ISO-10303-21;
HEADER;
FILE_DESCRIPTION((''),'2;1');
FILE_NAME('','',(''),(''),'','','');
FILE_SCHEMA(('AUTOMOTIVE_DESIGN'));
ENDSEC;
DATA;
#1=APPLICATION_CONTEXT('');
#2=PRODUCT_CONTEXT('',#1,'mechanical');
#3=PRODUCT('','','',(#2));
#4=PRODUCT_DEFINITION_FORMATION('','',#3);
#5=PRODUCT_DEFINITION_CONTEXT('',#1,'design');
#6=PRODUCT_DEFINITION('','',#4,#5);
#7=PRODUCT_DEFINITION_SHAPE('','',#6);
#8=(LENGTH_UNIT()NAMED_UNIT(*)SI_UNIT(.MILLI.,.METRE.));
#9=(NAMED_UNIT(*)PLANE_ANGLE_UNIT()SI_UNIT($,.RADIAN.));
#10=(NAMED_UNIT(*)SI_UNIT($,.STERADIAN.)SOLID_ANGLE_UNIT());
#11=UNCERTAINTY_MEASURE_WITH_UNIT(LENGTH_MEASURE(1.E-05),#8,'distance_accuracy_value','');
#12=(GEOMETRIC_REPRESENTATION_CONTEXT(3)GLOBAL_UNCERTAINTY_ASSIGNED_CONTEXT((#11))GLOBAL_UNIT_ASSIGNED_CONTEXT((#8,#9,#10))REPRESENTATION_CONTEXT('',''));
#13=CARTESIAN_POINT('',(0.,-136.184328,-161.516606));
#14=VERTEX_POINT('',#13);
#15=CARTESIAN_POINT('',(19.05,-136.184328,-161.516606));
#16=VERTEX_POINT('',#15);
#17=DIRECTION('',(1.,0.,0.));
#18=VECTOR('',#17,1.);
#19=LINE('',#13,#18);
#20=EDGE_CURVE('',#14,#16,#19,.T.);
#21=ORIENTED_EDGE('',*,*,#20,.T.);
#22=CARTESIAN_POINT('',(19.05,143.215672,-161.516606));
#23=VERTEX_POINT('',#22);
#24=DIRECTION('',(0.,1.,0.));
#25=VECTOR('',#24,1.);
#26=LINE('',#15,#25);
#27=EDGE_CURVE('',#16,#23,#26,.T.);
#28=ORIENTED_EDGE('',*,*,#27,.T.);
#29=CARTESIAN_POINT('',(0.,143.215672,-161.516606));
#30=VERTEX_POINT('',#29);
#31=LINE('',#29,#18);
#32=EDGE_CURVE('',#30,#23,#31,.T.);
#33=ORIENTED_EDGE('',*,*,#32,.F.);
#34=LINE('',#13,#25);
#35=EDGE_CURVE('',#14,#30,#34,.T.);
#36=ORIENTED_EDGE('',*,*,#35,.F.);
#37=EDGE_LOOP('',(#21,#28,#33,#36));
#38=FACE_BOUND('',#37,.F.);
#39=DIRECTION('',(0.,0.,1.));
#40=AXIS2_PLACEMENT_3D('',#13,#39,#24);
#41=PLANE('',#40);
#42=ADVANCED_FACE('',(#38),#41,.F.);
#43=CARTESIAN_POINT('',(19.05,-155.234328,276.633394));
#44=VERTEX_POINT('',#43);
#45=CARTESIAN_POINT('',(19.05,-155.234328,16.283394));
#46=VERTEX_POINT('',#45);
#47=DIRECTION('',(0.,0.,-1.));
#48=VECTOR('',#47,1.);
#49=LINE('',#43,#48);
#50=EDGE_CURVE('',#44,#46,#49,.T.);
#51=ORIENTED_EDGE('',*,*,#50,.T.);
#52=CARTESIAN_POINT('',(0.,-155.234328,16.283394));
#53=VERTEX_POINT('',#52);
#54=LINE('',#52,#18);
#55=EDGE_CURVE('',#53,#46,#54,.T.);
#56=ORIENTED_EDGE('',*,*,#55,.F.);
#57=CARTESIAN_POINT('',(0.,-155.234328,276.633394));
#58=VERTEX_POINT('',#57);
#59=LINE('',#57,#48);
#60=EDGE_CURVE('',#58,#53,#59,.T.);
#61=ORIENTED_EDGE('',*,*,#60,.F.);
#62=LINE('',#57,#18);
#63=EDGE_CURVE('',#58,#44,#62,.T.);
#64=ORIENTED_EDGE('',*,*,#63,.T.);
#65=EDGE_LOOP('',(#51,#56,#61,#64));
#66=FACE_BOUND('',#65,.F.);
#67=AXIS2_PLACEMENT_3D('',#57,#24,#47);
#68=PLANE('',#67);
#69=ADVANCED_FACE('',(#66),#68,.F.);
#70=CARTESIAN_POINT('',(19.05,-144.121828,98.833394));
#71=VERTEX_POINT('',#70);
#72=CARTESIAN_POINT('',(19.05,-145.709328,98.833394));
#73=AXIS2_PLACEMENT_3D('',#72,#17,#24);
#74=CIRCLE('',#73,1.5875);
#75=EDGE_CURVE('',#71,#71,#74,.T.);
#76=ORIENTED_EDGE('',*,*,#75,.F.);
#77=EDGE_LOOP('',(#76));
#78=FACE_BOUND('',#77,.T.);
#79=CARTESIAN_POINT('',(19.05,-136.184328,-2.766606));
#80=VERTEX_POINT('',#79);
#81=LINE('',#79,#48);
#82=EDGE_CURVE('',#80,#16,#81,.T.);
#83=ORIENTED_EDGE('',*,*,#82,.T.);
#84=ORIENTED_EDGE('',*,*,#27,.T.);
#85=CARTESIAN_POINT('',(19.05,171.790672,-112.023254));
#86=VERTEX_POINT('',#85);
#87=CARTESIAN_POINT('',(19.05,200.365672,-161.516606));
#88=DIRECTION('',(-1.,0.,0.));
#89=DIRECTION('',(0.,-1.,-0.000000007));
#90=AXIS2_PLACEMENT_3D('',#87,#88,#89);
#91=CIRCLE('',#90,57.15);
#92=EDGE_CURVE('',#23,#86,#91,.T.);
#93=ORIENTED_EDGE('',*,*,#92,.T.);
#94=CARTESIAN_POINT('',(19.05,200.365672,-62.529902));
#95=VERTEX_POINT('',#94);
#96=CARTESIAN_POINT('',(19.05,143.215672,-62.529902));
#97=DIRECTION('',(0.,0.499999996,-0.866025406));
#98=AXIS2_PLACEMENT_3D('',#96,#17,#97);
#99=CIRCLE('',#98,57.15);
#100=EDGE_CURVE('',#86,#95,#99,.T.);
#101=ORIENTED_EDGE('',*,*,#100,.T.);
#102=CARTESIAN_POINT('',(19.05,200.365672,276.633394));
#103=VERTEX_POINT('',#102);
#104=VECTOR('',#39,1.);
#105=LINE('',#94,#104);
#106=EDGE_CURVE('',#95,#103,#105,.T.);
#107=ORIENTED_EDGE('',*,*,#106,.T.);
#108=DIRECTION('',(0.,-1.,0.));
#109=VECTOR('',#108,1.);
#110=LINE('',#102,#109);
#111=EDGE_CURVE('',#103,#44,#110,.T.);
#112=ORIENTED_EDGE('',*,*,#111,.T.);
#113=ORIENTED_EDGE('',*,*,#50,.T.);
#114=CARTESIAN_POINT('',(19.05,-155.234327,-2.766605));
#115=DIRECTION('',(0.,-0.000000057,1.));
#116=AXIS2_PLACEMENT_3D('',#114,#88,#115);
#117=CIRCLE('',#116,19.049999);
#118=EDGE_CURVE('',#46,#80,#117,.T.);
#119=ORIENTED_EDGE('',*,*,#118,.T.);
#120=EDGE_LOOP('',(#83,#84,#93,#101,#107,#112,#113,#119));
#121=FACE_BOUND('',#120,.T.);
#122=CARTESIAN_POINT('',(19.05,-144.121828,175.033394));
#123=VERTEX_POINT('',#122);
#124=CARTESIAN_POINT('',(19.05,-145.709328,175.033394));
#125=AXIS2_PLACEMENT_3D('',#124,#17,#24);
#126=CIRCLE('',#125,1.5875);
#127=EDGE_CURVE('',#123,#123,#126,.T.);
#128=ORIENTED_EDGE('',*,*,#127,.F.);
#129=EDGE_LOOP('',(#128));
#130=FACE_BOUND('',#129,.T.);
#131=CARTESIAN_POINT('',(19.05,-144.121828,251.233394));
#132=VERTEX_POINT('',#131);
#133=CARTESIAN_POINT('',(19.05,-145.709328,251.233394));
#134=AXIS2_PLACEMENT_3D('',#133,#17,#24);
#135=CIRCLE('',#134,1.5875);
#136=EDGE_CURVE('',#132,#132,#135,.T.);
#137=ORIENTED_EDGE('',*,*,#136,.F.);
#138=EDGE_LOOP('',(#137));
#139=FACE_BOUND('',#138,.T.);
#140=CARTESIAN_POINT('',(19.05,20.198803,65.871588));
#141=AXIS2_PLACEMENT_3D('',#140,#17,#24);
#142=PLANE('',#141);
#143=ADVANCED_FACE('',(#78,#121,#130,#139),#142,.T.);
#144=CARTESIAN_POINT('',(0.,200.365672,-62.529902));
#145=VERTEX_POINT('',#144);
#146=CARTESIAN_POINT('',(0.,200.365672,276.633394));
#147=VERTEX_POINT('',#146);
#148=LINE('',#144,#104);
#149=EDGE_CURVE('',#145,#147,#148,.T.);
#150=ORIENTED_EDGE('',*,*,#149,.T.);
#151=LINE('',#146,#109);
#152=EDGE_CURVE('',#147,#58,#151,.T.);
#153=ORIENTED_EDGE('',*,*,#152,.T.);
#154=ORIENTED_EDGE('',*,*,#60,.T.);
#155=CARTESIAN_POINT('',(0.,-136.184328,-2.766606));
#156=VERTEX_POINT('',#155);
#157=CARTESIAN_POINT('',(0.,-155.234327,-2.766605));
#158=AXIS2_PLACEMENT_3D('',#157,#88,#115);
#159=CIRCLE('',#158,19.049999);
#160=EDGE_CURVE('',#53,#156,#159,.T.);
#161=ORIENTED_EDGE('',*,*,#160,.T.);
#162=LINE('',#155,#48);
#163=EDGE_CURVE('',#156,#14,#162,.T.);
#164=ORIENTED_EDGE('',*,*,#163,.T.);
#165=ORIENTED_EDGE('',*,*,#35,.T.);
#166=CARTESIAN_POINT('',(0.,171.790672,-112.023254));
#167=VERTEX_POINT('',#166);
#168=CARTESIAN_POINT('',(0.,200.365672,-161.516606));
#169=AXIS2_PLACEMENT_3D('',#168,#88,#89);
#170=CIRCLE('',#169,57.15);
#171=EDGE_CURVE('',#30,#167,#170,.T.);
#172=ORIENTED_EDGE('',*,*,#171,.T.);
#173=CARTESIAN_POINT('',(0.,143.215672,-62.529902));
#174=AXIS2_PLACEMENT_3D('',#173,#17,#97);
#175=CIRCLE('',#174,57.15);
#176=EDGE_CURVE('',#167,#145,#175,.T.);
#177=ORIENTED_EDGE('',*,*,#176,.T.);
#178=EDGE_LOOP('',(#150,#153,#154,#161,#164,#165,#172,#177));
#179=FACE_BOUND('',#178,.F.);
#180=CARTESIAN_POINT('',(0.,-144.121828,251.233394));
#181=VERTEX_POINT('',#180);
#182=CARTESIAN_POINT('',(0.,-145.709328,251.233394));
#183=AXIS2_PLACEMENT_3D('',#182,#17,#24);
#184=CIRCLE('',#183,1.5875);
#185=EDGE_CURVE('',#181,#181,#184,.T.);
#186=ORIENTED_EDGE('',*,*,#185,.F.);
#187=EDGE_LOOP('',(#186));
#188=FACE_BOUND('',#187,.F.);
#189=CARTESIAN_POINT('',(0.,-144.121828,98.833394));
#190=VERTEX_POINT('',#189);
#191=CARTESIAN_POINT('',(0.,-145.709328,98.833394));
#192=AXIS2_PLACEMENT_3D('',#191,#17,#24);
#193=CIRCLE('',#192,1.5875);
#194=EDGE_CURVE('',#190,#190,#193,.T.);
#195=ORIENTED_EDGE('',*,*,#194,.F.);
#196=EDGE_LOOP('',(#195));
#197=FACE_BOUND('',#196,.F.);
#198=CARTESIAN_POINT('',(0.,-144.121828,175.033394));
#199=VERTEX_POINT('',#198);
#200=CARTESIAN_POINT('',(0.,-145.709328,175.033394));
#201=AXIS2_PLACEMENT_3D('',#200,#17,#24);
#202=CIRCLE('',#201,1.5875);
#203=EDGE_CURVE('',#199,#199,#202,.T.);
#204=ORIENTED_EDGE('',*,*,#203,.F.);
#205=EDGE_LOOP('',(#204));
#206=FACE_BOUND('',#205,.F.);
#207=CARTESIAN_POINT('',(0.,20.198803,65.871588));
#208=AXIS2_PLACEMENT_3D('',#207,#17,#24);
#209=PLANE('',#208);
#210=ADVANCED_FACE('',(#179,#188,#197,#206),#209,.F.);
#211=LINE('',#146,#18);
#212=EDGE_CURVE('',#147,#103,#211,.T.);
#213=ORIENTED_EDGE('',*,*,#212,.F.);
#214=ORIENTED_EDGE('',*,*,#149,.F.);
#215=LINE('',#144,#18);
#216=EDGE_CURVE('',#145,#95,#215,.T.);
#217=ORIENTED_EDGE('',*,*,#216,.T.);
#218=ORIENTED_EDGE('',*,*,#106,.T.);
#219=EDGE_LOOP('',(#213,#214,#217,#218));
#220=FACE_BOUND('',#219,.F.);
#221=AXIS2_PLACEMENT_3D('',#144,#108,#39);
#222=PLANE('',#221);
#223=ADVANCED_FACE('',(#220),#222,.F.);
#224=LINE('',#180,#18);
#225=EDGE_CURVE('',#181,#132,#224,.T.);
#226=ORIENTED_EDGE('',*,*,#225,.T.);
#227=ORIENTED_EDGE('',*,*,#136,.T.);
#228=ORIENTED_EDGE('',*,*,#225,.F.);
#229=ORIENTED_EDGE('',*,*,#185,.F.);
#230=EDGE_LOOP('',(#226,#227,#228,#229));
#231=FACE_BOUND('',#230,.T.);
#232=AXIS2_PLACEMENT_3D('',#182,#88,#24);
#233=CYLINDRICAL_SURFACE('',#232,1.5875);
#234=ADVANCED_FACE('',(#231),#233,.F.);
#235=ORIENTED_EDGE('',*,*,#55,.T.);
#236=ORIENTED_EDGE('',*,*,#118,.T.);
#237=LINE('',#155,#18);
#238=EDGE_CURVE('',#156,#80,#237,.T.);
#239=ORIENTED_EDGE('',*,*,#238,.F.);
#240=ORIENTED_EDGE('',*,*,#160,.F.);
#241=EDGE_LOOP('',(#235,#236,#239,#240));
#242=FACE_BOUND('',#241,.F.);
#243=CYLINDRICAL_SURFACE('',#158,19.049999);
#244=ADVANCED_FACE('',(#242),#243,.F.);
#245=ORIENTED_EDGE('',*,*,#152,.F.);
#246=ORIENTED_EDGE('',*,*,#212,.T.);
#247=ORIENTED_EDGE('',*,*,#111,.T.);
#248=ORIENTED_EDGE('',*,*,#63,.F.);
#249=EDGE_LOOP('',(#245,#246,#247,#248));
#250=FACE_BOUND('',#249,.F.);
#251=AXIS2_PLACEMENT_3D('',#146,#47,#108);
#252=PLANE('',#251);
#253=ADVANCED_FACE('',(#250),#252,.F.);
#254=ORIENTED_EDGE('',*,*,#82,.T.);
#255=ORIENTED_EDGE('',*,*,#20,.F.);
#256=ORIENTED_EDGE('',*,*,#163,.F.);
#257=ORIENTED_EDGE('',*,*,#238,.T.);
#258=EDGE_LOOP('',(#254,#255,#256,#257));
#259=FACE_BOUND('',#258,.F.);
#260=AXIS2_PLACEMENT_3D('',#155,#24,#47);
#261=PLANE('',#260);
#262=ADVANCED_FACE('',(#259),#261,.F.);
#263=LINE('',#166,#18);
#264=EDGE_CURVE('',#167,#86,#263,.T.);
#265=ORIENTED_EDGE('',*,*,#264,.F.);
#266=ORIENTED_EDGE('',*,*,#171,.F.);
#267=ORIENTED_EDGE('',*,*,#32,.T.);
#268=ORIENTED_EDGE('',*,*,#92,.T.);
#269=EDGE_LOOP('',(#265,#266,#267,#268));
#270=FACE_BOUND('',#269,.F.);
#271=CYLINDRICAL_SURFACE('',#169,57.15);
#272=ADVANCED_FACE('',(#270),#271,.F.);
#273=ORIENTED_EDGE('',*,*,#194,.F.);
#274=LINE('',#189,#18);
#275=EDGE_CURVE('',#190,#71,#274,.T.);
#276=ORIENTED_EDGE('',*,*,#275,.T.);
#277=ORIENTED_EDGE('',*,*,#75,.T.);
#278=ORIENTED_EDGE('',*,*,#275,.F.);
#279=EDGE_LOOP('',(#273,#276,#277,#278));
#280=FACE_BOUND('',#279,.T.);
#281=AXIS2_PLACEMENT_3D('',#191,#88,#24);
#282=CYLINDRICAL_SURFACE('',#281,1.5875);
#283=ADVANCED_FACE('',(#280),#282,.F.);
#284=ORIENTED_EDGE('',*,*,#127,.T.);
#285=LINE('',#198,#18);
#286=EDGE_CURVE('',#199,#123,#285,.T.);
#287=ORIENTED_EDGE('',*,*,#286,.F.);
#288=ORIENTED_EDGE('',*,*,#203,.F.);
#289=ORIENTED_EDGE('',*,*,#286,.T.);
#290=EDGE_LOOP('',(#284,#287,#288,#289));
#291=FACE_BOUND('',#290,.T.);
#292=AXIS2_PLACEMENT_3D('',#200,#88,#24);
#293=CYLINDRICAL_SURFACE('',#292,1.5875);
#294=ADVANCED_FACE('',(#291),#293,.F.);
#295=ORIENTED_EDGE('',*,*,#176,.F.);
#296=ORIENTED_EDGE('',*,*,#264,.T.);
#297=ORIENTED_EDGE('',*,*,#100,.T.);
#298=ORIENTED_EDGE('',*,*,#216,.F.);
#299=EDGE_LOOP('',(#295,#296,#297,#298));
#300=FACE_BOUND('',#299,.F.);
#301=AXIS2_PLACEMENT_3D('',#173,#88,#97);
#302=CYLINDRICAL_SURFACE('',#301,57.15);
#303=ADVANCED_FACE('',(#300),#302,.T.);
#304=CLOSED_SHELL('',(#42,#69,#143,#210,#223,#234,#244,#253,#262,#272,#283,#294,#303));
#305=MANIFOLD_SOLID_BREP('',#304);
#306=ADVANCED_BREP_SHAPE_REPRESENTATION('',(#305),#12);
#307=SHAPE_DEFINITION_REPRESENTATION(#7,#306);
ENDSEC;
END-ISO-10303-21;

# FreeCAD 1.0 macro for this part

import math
import FreeCAD as App
import Part
import Sketcher

V = App.Vector
Q = App.Units.Quantity

doc = App.newDocument("Part")
body = doc.addObject("PartDesign::Body", "Body")

# Sketch on YZ plane
sketch1 = body.newObject("Sketcher::SketchObject", "Sketch")
sketch1.AttachmentSupport = (doc.getObject("YZ_Plane"), [""])
sketch1.MapMode = "FlatFace"
sketch1.addGeometry([
    Part.LineSegment(V(200.365672, 276.633394, 0), V(-155.234328, 276.633394, 0)),  # 0
    Part.LineSegment(V(-155.234328, 276.633394, 0), V(-155.234328, 16.283394, 0)),  # 1
    Part.ArcOfCircle(Part.Circle(V(-155.234327, -2.766605, 0), V(0, 0, 1), 19.049999), math.radians(-0.000003), math.radians(90.000003)),  # 2
    Part.LineSegment(V(-136.184328, -2.766606, 0), V(-136.184328, -161.516606, 0)),  # 3
    Part.LineSegment(V(-136.184328, -161.516606, 0), V(143.215672, -161.516606, 0)),  # 4
    Part.ArcOfCircle(Part.Circle(V(200.365672, -161.516606, 0), V(0, 0, 1), 57.15), math.radians(120), math.radians(180)),  # 5
    Part.ArcOfCircle(Part.Circle(V(143.215672, -62.529902, 0), V(0, 0, 1), 57.15), math.radians(-60), math.radians(0)),  # 6
    Part.LineSegment(V(200.365672, -62.529902, 0), V(200.365672, 276.633394, 0)),  # 7
    Part.Circle(V(-145.709328, 98.833394, 0), V(0, 0, 1), 1.5875),  # 8
    Part.Circle(V(-145.709328, 175.033394, 0), V(0, 0, 1), 1.5875),  # 9
    Part.Circle(V(-145.709328, 251.233394, 0), V(0, 0, 1), 1.5875),  # 10
], False)
sketch1.addConstraint([
    Sketcher.Constraint("Coincident", 0, 2, 1, 1),
    Sketcher.Constraint("Coincident", 1, 2, 2, 2),
    Sketcher.Constraint("Tangent", 2, 1, 3, 1),
    Sketcher.Constraint("Coincident", 3, 2, 4, 1),
    Sketcher.Constraint("Coincident", 4, 2, 5, 2),
    Sketcher.Constraint("Tangent", 5, 1, 6, 1),
    Sketcher.Constraint("Tangent", 6, 2, 7, 1),
    Sketcher.Constraint("Coincident", 7, 2, 0, 1),
    Sketcher.Constraint("Horizontal", 0),
    Sketcher.Constraint("Vertical", 1),
    Sketcher.Constraint("Vertical", 3),
    Sketcher.Constraint("Horizontal", 4),
    Sketcher.Constraint("Vertical", 7),
    Sketcher.Constraint("Equal", 5, 6),
    Sketcher.Constraint("Equal", 8, 9),
    Sketcher.Constraint("Equal", 9, 10),
    Sketcher.Constraint("Horizontal", 5, 3, 3, 2),
    Sketcher.Constraint("Vertical", 8, 3, 9, 3),
    Sketcher.Constraint("Vertical", 9, 3, 10, 3),
    Sketcher.Constraint("Vertical", 2, 3, 0, 2),
    Sketcher.Constraint("Vertical", 6, 3, 4, 2),
    Sketcher.Constraint("DistanceX", 0, 2, 0, 1, Q("14 in")),
    Sketcher.Constraint("DistanceX", 4, 1, 4, 2, Q("11 in")),
    Sketcher.Constraint("Radius", 2, Q("0.75 in")),
    Sketcher.Constraint("Diameter", 8, Q("0.125 in")),
    Sketcher.Constraint("DistanceY", 2, 3, 8, 3, Q("4 in")),
    Sketcher.Constraint("DistanceY", 8, 3, 9, 3, Q("3 in")),
    Sketcher.Constraint("DistanceY", 9, 3, 10, 3, Q("3 in")),
    Sketcher.Constraint("DistanceY", 10, 3, 0, 2, Q("1 in")),
    Sketcher.Constraint("DistanceY", 3, 2, 1, 2, Q("7 in")),
    Sketcher.Constraint("DistanceX", 2, 3, 8, 3, Q("0.375 in")),
    Sketcher.Constraint("DistanceX", -1, 1, 5, 3, Q("200.365672 mm")),
    Sketcher.Constraint("DistanceY", 2, 3, -1, 1, Q("2.766605 mm")),
])
pad1 = body.newObject("PartDesign::Pad", "Pad")
pad1.Profile = sketch1
pad1.Length = Q("0.75 in")

doc.recompute()
